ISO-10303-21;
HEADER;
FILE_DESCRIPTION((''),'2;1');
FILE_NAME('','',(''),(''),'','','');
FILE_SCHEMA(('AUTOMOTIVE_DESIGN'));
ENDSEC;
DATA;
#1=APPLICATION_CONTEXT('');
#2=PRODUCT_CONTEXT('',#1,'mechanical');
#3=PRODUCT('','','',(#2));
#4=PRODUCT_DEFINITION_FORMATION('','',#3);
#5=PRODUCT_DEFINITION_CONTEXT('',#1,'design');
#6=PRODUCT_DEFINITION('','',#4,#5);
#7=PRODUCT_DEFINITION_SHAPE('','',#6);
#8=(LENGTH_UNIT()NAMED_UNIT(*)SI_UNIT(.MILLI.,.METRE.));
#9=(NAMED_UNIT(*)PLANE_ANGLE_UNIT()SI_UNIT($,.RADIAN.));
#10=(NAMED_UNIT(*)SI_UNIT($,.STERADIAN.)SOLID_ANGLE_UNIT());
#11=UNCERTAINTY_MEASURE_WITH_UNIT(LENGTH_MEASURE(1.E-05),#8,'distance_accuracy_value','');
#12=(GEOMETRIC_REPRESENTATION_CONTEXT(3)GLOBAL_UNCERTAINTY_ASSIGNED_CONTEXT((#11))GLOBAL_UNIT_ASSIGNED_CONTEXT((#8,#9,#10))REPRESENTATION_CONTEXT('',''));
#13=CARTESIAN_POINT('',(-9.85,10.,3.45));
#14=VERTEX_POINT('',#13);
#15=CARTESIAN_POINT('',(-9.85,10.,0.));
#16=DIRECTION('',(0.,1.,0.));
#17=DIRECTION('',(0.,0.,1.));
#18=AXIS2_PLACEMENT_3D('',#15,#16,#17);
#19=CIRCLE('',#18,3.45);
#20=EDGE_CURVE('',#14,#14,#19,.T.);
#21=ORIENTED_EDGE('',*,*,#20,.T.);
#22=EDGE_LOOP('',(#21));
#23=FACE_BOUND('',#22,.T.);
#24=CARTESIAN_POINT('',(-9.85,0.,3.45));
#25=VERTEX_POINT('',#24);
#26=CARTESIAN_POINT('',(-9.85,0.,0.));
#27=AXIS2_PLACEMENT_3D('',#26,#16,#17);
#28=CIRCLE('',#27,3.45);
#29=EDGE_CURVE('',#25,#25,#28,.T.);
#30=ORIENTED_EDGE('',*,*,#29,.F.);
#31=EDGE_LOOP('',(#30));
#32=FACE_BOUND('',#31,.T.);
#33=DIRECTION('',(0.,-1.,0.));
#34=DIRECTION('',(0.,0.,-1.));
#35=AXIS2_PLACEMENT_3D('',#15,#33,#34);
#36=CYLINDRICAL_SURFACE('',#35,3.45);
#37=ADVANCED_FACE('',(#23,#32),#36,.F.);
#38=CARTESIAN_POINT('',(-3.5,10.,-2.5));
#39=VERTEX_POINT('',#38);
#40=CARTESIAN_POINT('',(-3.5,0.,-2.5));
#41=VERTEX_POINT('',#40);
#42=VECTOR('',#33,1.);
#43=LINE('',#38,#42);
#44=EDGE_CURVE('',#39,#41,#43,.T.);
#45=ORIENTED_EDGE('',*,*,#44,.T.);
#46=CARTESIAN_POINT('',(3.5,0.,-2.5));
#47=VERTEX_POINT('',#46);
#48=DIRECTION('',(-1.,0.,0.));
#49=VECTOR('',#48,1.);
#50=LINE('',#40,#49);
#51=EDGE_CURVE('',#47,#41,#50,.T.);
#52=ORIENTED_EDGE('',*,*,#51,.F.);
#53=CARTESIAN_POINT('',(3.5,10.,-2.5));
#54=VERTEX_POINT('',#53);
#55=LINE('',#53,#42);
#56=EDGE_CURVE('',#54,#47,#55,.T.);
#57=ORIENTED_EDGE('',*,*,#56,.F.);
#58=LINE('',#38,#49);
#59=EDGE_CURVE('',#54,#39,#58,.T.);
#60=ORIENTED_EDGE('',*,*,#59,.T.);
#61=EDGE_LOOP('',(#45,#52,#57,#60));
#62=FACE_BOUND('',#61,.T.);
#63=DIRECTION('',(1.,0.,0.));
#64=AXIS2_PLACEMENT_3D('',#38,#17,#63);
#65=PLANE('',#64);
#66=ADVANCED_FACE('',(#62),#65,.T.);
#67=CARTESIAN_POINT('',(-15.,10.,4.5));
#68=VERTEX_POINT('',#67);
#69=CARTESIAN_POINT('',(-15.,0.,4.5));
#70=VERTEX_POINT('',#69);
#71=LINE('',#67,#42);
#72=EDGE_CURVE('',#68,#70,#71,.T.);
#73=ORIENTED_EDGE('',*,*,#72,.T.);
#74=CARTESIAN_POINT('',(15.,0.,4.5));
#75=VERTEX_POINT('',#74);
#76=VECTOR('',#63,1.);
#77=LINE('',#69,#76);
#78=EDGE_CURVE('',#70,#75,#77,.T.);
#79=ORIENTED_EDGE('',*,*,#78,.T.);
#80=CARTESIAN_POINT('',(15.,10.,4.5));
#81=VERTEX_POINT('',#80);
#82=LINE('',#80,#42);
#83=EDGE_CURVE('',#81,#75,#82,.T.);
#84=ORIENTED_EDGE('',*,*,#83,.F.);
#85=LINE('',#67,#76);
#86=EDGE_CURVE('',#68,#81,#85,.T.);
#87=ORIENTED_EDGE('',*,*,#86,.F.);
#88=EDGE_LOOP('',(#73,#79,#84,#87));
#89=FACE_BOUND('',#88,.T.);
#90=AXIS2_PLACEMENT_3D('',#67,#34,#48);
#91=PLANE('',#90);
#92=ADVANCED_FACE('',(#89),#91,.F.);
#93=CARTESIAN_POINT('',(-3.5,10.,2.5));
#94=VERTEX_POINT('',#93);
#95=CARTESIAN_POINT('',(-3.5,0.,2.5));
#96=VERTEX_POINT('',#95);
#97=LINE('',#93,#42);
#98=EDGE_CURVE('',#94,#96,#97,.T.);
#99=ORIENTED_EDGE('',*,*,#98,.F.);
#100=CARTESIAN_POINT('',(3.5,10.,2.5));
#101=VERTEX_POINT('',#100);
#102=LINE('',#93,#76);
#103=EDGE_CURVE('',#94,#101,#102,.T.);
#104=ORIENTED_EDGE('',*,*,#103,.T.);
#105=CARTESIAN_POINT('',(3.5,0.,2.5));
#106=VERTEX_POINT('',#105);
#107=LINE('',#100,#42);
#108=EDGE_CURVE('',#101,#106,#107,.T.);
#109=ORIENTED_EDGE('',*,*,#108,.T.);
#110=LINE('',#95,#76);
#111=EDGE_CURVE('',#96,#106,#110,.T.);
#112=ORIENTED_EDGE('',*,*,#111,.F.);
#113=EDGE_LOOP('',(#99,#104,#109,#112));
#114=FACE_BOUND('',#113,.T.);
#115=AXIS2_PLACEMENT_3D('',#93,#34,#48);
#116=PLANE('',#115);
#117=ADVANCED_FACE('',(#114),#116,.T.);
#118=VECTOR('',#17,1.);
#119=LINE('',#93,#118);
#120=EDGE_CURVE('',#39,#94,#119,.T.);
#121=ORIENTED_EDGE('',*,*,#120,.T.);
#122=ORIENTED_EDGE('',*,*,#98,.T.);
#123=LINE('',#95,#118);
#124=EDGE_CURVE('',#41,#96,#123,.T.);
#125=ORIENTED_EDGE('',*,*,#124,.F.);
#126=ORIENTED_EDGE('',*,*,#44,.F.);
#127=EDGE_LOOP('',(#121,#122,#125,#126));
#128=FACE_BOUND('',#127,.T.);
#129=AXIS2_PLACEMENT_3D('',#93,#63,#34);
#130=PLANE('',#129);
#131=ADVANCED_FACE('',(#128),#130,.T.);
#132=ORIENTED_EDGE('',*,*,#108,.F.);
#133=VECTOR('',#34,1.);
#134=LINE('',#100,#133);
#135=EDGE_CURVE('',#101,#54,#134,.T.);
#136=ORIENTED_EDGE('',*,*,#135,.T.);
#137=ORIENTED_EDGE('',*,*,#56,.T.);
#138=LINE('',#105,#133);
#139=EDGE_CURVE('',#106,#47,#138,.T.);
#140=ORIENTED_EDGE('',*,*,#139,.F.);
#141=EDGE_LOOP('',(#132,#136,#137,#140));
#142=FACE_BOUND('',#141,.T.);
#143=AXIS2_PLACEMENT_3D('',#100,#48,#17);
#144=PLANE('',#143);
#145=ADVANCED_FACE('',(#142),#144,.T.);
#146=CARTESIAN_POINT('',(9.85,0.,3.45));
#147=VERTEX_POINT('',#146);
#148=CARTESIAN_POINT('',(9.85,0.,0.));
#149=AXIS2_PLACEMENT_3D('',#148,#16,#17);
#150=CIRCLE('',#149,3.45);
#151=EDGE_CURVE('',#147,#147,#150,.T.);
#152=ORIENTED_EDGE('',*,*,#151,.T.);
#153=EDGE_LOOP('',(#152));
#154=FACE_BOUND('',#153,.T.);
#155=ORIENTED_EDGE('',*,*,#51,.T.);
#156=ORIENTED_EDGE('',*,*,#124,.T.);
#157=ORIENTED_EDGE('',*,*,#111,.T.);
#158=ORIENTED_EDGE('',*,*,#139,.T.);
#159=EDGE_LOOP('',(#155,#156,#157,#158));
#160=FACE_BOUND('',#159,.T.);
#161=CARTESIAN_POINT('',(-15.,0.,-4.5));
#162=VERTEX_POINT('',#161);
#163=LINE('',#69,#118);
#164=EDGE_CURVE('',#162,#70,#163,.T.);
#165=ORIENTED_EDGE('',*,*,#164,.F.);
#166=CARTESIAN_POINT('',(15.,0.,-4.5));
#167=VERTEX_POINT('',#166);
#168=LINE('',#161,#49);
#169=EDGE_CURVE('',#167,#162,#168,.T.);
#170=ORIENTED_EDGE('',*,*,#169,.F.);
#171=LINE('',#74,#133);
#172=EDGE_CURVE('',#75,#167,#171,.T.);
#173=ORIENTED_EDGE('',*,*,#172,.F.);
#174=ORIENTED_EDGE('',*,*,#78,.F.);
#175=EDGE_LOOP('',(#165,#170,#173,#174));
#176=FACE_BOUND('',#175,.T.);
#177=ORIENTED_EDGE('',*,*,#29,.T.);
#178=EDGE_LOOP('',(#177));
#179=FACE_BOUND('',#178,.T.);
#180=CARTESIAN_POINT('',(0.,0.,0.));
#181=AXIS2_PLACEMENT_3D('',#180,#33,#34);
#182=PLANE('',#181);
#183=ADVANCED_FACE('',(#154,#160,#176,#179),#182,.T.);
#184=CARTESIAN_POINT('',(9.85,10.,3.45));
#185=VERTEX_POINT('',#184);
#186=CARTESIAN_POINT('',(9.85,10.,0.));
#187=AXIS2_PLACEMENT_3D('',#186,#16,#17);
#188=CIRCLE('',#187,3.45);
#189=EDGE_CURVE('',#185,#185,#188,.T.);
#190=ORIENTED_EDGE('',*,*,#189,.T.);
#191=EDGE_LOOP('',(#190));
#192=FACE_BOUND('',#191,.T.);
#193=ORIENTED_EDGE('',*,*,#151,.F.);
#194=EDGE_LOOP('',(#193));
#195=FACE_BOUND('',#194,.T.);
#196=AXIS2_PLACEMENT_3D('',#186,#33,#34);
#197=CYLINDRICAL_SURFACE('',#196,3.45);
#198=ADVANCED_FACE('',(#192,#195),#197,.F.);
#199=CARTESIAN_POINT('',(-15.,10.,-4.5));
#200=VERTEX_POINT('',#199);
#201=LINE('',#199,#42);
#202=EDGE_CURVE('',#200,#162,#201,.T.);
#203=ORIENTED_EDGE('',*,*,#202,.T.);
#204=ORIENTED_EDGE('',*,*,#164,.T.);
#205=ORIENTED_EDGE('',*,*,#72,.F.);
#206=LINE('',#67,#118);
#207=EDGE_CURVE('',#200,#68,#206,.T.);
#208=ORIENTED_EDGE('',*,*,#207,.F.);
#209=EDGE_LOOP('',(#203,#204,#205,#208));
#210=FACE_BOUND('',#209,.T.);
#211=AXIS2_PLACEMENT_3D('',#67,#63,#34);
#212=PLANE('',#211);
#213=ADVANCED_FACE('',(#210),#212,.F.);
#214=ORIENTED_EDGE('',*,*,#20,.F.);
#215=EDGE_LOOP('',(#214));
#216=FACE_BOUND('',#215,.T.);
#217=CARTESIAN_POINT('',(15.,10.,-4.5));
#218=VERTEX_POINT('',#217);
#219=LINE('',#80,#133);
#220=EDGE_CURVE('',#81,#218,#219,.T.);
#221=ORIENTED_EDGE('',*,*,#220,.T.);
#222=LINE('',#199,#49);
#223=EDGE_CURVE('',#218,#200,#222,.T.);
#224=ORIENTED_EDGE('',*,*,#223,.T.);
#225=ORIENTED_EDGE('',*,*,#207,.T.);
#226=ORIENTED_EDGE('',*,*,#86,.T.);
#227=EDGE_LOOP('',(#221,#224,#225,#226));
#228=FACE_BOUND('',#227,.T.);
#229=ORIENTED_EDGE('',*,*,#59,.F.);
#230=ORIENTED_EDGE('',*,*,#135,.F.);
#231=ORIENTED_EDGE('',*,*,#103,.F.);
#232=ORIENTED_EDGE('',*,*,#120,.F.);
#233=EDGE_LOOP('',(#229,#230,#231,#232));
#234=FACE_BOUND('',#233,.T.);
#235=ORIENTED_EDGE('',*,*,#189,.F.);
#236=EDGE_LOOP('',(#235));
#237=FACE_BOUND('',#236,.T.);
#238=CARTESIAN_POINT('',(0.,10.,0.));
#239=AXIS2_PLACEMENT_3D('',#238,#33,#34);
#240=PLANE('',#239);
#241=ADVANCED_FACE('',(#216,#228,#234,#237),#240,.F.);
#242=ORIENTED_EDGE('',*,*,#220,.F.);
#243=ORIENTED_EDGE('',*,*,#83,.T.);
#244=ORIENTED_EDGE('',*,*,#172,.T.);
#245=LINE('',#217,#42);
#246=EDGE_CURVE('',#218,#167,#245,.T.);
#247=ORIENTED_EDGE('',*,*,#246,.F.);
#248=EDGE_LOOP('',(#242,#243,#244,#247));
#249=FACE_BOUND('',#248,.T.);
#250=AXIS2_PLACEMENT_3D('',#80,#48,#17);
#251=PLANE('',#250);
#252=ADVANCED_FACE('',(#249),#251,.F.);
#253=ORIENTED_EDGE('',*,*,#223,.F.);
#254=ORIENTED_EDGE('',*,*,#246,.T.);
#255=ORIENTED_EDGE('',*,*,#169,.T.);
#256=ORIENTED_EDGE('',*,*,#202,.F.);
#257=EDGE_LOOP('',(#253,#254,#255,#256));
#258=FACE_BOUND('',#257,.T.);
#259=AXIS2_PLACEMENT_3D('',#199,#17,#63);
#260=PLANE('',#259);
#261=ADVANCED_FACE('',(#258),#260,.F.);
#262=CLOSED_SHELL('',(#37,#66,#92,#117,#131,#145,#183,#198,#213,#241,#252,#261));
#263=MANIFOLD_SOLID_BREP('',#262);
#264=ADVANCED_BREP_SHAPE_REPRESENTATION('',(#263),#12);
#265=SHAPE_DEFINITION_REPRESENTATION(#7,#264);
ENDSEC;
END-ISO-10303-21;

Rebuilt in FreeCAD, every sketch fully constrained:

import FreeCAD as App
import Part
import Sketcher
from FreeCAD import Vector


def add_polygon(sketch, points):
    """Adds a closed chain of lines whose ends are joined by coincident constraints."""
    first, n = sketch.GeometryCount, len(points)
    for a, b in zip(points, points[1:] + points[:1]):
        sketch.addGeometry(Part.LineSegment(App.Vector(*a, 0), App.Vector(*b, 0)), False)
    for i in range(n):
        sketch.addConstraint(Sketcher.Constraint("Coincident", first + i, 2, first + (i + 1) % n, 1))

doc = App.newDocument("Part")
body = doc.addObject("PartDesign::Body", "Body")

# Sketch on XZ plane
sketch1 = body.newObject("Sketcher::SketchObject", "Sketch")
sketch1.AttachmentSupport = (doc.getObject("XZ_Plane"), [""])
sketch1.MapMode = "FlatFace"
add_polygon(sketch1, [(-15, -4.5), (-15, 4.5), (15, 4.5), (15, -4.5)])  # lines 0-3
sketch1.addGeometry(Part.Circle(Vector(-9.8, 0, 0), Vector(0, 0, 1), 3.5), False)  # 4
add_polygon(sketch1, [(3.5, 2.5), (-3.5, 2.5), (-3.5, -2.5), (3.5, -2.5)])  # lines 5-8
sketch1.addGeometry(Part.Circle(Vector(9.8, 0, 0), Vector(0, 0, 1), 3.5), False)  # 9
sketch1.addConstraint([
    Sketcher.Constraint("Vertical", 0),
    Sketcher.Constraint("Horizontal", 1),
    Sketcher.Constraint("Vertical", 2),
    Sketcher.Constraint("Horizontal", 3),
    Sketcher.Constraint("Horizontal", 5),
    Sketcher.Constraint("Vertical", 6),
    Sketcher.Constraint("Horizontal", 7),
    Sketcher.Constraint("Vertical", 8),
    Sketcher.Constraint("Equal", 4, 9),
    Sketcher.Constraint("Symmetric", 4, 3, 9, 3, -1, 1),
    Sketcher.Constraint("Symmetric", 0, 2, 2, 2, -1, 1),
    Sketcher.Constraint("Symmetric", 5, 2, 7, 2, -1, 1),
    Sketcher.Constraint("PointOnObject", 4, 3, -1),
    Sketcher.Constraint("Diameter", 4, 6.9),
    Sketcher.Constraint("DistanceX", 1, 1, 1, 2, 30.0),
    Sketcher.Constraint("DistanceX", 5, 2, 5, 1, 7.0),
    Sketcher.Constraint("DistanceY", 0, 1, 0, 2, 9.0),
    Sketcher.Constraint("DistanceY", 6, 2, 6, 1, 5.0),
    Sketcher.Constraint("DistanceX", 4, 3, 9, 3, 19.7),
])
pad1 = body.newObject("PartDesign::Pad", "Pad")
pad1.Profile = sketch1
pad1.Length = 10
pad1.Reversed = True

doc.recompute()
